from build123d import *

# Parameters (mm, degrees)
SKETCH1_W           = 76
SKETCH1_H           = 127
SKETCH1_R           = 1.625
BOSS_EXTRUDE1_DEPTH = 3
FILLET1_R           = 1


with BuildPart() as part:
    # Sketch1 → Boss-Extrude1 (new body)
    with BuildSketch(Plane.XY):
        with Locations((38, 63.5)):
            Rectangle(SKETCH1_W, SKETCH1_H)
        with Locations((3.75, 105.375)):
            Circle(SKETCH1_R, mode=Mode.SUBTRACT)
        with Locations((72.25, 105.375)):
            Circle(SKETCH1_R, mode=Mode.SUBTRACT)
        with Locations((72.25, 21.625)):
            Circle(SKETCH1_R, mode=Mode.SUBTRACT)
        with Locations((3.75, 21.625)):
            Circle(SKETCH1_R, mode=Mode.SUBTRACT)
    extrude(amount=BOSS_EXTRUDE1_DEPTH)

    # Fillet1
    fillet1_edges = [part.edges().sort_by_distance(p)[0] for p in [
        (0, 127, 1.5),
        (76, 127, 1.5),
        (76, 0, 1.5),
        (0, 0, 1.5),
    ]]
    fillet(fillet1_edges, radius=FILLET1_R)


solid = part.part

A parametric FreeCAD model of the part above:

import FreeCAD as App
import Part
import Sketcher
from FreeCAD import Vector


def edges_at(feature, points):
    """Names of the edges that pass closest to the given points."""
    edges = feature.Shape.Edges
    near = lambda p: min(range(len(edges)), key=lambda i: edges[i].distToShape(Part.Vertex(*p))[0])
    return sorted({f"Edge{near(p) + 1}" for p in points})

doc = App.newDocument("Part")
body = doc.addObject("PartDesign::Body", "Body")

# Sketch on XY plane
sketch1 = body.newObject("Sketcher::SketchObject", "Sketch")
sketch1.AttachmentSupport = (doc.getObject("XY_Plane"), [""])
sketch1.MapMode = "FlatFace"
sketch1.addGeometry(Part.LineSegment(Vector(0, 127, 0), Vector(0, 0, 0)), False)
sketch1.addGeometry(Part.LineSegment(Vector(0, 0, 0), Vector(76, 0, 0)), False)
sketch1.addGeometry(Part.LineSegment(Vector(76, 0, 0), Vector(76, 127, 0)), False)
sketch1.addGeometry(Part.LineSegment(Vector(76, 127, 0), Vector(0, 127, 0)), False)
sketch1.addGeometry(Part.Circle(Vector(3.75, 21.625, 0), Vector(0, 0, 1), 1.625), False)
sketch1.addGeometry(Part.Circle(Vector(72.25, 21.625, 0), Vector(0, 0, 1), 1.625), False)
sketch1.addGeometry(Part.Circle(Vector(3.75, 105.375, 0), Vector(0, 0, 1), 1.625), False)
sketch1.addGeometry(Part.Circle(Vector(72.25, 105.375, 0), Vector(0, 0, 1), 1.625), False)
sketch1.addConstraint(Sketcher.Constraint("Coincident", 0, 2, 1, 1))
sketch1.addConstraint(Sketcher.Constraint("Coincident", 1, 2, 2, 1))
sketch1.addConstraint(Sketcher.Constraint("Coincident", 2, 2, 3, 1))
sketch1.addConstraint(Sketcher.Constraint("Coincident", 3, 2, 0, 1))
sketch1.addConstraint(Sketcher.Constraint("Vertical", 0))
sketch1.addConstraint(Sketcher.Constraint("Horizontal", 1))
sketch1.addConstraint(Sketcher.Constraint("Vertical", 2))
sketch1.addConstraint(Sketcher.Constraint("Horizontal", 3))
sketch1.addConstraint(Sketcher.Constraint("Coincident", 0, 2, -1, 1))
sketch1.addConstraint(Sketcher.Constraint("Equal", 4, 5))
sketch1.addConstraint(Sketcher.Constraint("Equal", 5, 6))
sketch1.addConstraint(Sketcher.Constraint("Equal", 6, 7))
sketch1.addConstraint(Sketcher.Constraint("Horizontal", 4, 3, 5, 3))
sketch1.addConstraint(Sketcher.Constraint("Horizontal", 6, 3, 7, 3))
sketch1.addConstraint(Sketcher.Constraint("Vertical", 4, 3, 6, 3))
sketch1.addConstraint(Sketcher.Constraint("Vertical", 5, 3, 7, 3))
sketch1.addConstraint(Sketcher.Constraint("Diameter", 4, 3.25))
sketch1.addConstraint(Sketcher.Constraint("DistanceX", 1, 1, 1, 2, 76.0))
sketch1.addConstraint(Sketcher.Constraint("DistanceY", 0, 2, 0, 1, 127.0))
sketch1.addConstraint(Sketcher.Constraint("DistanceX", 4, 3, 5, 3, 68.5))
sketch1.addConstraint(Sketcher.Constraint("DistanceX", -1, 1, 4, 3, 3.75))
sketch1.addConstraint(Sketcher.Constraint("DistanceY", 4, 3, 6, 3, 83.75))
sketch1.addConstraint(Sketcher.Constraint("DistanceY", -1, 1, 4, 3, 21.625))
pad1 = body.newObject("PartDesign::Pad", "Pad")
pad1.Profile = sketch1
pad1.Length = 3
doc.recompute()

fillet = body.newObject("PartDesign::Fillet", "Fillet")
fillet.Base = (pad1, edges_at(pad1, [
    (0, 127, 1.5),
    (76, 127, 1.5),
    (76, 0, 1.5),
    (0, 0, 1.5),
]))
fillet.Radius = 1

doc.recompute()
